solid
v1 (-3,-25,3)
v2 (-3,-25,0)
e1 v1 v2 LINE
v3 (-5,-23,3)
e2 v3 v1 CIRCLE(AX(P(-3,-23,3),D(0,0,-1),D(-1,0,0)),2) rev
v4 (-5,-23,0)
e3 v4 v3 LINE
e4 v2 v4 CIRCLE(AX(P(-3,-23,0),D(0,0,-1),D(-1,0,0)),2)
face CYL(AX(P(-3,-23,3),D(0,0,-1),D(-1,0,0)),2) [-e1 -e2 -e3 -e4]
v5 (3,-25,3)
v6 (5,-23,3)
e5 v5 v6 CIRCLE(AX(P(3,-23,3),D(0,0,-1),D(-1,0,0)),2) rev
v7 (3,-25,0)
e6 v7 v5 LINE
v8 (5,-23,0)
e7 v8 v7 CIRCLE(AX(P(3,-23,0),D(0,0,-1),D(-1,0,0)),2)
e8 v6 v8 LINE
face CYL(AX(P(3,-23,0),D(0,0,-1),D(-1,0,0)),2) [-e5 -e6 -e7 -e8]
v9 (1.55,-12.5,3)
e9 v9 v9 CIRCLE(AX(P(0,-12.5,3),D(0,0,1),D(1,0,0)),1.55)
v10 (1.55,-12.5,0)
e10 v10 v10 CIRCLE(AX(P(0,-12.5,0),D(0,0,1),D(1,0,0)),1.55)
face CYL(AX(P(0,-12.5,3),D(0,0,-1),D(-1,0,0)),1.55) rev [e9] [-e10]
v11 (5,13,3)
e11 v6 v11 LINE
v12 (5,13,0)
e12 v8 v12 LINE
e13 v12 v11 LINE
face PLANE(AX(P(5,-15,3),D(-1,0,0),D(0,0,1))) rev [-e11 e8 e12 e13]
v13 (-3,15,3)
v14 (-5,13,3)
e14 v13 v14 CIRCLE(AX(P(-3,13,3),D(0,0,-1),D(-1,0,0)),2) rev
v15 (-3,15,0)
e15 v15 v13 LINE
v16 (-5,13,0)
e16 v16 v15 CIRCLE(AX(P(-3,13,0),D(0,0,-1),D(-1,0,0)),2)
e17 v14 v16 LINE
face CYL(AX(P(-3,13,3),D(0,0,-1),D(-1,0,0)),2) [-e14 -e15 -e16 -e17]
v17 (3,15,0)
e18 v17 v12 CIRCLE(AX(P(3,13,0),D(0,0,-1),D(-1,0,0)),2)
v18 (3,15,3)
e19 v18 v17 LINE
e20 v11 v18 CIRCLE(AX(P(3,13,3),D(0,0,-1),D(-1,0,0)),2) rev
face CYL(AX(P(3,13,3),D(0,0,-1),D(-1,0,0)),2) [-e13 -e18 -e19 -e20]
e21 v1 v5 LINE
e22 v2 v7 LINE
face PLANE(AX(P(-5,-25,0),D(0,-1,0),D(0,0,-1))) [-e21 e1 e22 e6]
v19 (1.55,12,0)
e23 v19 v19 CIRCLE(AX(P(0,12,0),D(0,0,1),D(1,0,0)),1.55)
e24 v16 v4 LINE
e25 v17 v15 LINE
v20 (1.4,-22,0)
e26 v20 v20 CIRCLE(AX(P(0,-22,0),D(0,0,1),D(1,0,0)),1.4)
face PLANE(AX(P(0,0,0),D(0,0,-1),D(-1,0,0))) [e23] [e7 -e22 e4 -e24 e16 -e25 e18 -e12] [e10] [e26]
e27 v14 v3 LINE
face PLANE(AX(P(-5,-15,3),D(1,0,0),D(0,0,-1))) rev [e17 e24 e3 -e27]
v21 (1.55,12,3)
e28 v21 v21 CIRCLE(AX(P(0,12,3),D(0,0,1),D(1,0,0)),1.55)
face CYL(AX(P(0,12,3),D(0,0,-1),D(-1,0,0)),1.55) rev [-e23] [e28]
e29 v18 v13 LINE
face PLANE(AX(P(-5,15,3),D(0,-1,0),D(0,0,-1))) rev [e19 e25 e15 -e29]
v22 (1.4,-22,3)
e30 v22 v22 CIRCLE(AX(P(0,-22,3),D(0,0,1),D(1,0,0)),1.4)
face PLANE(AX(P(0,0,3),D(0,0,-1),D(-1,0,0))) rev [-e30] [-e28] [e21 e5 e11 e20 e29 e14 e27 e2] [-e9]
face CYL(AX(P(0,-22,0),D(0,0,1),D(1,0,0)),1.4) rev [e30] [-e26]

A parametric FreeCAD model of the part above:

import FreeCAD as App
import Part
import Sketcher


def edges_at(feature, points):
    """Names of the edges that pass closest to the given points."""
    edges = feature.Shape.Edges
    near = lambda p: min(range(len(edges)), key=lambda i: edges[i].distToShape(Part.Vertex(*p))[0])
    return sorted({f"Edge{near(p) + 1}" for p in points})

doc = App.newDocument("Part")
body = doc.addObject("PartDesign::Body", "Body")

# Sketch on XY plane
sketch1 = body.newObject("Sketcher::SketchObject", "Sketch")
sketch1.AttachmentSupport = (doc.getObject("XY_Plane"), [""])
sketch1.MapMode = "FlatFace"
sketch1.addGeometry([
    Part.LineSegment(App.Vector(-5, 15, 0), App.Vector(-5, -15, 0)),  # 0
    Part.LineSegment(App.Vector(-5, -15, 0), App.Vector(5, -15, 0)),  # 1
    Part.LineSegment(App.Vector(5, -15, 0), App.Vector(5, 15, 0)),  # 2
    Part.LineSegment(App.Vector(5, 15, 0), App.Vector(-5, 15, 0)),  # 3
    Part.Circle(App.Vector(0, -12.5, 0), App.Vector(0, 0, 1), 1.6),  # 4
    Part.Circle(App.Vector(0, 12, 0), App.Vector(0, 0, 1), 1.6),  # 5
], False)
sketch1.addConstraint([
    Sketcher.Constraint("Coincident", 0, 2, 1, 1),
    Sketcher.Constraint("Coincident", 1, 2, 2, 1),
    Sketcher.Constraint("Coincident", 2, 2, 3, 1),
    Sketcher.Constraint("Coincident", 3, 2, 0, 1),
    Sketcher.Constraint("Vertical", 0),
    Sketcher.Constraint("Horizontal", 1),
    Sketcher.Constraint("Vertical", 2),
    Sketcher.Constraint("Horizontal", 3),
    Sketcher.Constraint("Equal", 4, 5),
    Sketcher.Constraint("Symmetric", 0, 2, 2, 2, -1, 1),
    Sketcher.Constraint("PointOnObject", 4, 3, -2),
    Sketcher.Constraint("PointOnObject", 5, 3, -2),
    Sketcher.Constraint("Diameter", 4, 3.1),
    Sketcher.Constraint("DistanceX", 1, 1, 1, 2, 10.0),
    Sketcher.Constraint("DistanceY", 0, 2, 0, 1, 30.0),
    Sketcher.Constraint("DistanceY", -1, 1, 5, 3, 12.0),
    Sketcher.Constraint("DistanceY", 4, 3, -1, 1, 12.5),
])
pad1 = body.newObject("PartDesign::Pad", "Pad")
pad1.Profile = sketch1
pad1.Length = 3

# Sketch on XY plane
sketch2 = body.newObject("Sketcher::SketchObject", "Sketch001")
sketch2.AttachmentSupport = (doc.getObject("XY_Plane"), [""])
sketch2.MapMode = "FlatFace"
sketch2.AttachmentOffset = App.Placement(App.Vector(0, 0, 3), App.Rotation())
sketch2.addGeometry([
    Part.LineSegment(App.Vector(-5, -15, 0), App.Vector(-5, -25, 0)),  # 0
    Part.LineSegment(App.Vector(-5, -25, 0), App.Vector(5, -25, 0)),  # 1
    Part.LineSegment(App.Vector(5, -25, 0), App.Vector(5, -15, 0)),  # 2
    Part.LineSegment(App.Vector(5, -15, 0), App.Vector(-5, -15, 0)),  # 3
    Part.Circle(App.Vector(0, -22, 0), App.Vector(0, 0, 1), 1.4),  # 4
], False)
sketch2.addConstraint([
    Sketcher.Constraint("Coincident", 0, 2, 1, 1),
    Sketcher.Constraint("Coincident", 1, 2, 2, 1),
    Sketcher.Constraint("Coincident", 2, 2, 3, 1),
    Sketcher.Constraint("Coincident", 3, 2, 0, 1),
    Sketcher.Constraint("Vertical", 0),
    Sketcher.Constraint("Horizontal", 1),
    Sketcher.Constraint("Vertical", 2),
    Sketcher.Constraint("Horizontal", 3),
    Sketcher.Constraint("PointOnObject", 4, 3, -2),
    Sketcher.Constraint("Equal", 3, 0),
    Sketcher.Constraint("Diameter", 4, 2.8),
    Sketcher.Constraint("DistanceX", 1, 1, 1, 2, 10.0),
    Sketcher.Constraint("DistanceY", 4, 3, -1, 1, 22.0),
    Sketcher.Constraint("DistanceX", 0, 2, -1, 1, 5.0),
    Sketcher.Constraint("DistanceY", 0, 2, -1, 1, 25.0),
])
pad2 = body.newObject("PartDesign::Pad", "Pad001")
pad2.Profile = sketch2
pad2.Length = 3
pad2.Reversed = True
doc.recompute()

fillet = body.newObject("PartDesign::Fillet", "Fillet")
fillet.Base = (pad2, edges_at(pad2, [
    (-5, -25, 1.5),
    (5, -25, 1.5),
    (-5, 15, 1.5),
    (5, 15, 1.5),
]))
fillet.Radius = 2

doc.recompute()
